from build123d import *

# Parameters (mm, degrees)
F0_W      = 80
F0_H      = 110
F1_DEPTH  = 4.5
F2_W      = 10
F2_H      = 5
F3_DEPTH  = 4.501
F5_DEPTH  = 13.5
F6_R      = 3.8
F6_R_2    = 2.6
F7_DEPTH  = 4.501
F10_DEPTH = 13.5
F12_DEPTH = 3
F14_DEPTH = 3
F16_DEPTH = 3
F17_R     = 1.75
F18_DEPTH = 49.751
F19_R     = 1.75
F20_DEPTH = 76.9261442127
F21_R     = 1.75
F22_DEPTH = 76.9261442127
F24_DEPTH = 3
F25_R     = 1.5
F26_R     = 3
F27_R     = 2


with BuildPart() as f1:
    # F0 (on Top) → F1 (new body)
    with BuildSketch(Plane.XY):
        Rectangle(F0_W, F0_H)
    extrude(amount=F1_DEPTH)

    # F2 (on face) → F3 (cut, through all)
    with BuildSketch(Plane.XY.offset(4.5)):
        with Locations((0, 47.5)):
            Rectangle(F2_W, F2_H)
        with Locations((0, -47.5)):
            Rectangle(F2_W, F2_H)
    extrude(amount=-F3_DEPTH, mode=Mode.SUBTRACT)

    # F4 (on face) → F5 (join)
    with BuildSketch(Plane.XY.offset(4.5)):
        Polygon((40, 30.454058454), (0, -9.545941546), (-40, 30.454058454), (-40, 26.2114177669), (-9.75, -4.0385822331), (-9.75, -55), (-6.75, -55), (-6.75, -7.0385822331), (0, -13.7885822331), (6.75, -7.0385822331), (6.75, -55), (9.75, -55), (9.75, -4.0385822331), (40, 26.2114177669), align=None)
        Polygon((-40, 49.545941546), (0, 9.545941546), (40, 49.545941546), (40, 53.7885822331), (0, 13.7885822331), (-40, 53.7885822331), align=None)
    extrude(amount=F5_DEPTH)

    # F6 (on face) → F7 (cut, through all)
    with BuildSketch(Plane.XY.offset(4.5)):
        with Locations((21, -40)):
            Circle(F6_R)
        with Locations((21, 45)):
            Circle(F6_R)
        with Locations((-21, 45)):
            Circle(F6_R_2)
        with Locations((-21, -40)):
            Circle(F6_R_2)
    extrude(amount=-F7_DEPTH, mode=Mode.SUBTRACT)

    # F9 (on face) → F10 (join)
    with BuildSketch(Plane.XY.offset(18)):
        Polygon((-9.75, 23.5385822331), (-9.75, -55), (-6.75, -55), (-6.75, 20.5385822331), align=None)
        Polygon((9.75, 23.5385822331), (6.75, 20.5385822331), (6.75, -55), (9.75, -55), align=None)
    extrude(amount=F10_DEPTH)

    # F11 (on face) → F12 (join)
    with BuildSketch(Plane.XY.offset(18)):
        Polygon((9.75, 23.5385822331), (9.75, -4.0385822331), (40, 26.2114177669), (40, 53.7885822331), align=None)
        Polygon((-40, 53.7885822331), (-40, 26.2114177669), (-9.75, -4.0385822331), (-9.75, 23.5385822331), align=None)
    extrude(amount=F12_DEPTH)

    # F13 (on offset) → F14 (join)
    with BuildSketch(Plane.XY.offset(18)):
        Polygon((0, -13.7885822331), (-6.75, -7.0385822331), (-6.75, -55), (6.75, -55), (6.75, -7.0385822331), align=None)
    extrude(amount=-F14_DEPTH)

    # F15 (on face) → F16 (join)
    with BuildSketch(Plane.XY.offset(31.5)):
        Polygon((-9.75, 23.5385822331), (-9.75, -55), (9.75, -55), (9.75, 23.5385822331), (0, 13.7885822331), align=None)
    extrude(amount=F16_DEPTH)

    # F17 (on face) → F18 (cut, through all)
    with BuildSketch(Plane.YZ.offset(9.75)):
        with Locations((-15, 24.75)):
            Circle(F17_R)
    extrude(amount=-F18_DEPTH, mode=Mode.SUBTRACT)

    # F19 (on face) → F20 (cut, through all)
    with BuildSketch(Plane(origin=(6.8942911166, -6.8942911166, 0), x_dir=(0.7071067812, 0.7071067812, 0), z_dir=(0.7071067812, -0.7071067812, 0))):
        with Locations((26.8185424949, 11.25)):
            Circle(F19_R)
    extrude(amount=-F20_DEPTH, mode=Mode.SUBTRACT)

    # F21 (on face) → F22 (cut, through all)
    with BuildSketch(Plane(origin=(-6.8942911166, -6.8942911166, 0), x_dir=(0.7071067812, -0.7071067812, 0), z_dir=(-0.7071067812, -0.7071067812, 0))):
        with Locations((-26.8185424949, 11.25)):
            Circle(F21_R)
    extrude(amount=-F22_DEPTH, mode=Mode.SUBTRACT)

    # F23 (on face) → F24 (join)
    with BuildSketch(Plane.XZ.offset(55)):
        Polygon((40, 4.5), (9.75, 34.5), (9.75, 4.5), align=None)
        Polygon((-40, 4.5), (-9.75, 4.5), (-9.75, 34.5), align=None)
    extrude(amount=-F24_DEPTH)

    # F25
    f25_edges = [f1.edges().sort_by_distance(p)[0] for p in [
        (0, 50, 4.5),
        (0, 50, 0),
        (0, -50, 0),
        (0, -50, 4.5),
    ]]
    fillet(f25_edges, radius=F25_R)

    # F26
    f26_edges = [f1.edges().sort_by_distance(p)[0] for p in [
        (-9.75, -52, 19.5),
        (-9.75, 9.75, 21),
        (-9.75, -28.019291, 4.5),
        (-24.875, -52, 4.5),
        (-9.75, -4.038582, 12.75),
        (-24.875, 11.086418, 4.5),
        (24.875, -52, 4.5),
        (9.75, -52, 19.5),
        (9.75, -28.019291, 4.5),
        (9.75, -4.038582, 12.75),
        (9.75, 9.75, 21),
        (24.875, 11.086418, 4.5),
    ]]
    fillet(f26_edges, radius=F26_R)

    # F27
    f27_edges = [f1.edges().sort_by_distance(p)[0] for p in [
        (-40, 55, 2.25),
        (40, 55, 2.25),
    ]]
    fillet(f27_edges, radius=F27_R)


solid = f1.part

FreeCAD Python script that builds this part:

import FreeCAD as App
import Part
import Sketcher

V = App.Vector


def edges_at(feature, points):
    """Names of the edges that pass closest to the given points."""
    edges = feature.Shape.Edges
    near = lambda p: min(range(len(edges)), key=lambda i: edges[i].distToShape(Part.Vertex(*p))[0])
    return sorted({f"Edge{near(p) + 1}" for p in points})


def add_polygon(sketch, points):
    """Adds a closed chain of lines whose ends are joined by coincident constraints."""
    first, n = sketch.GeometryCount, len(points)
    for a, b in zip(points, points[1:] + points[:1]):
        sketch.addGeometry(Part.LineSegment(App.Vector(*a, 0), App.Vector(*b, 0)), False)
    for i in range(n):
        sketch.addConstraint(Sketcher.Constraint("Coincident", first + i, 2, first + (i + 1) % n, 1))

doc = App.newDocument("Part")
body = doc.addObject("PartDesign::Body", "Body")

# Sketch on XY plane
sketch1 = body.newObject("Sketcher::SketchObject", "Sketch")
sketch1.AttachmentSupport = (doc.getObject("XY_Plane"), [""])
sketch1.MapMode = "FlatFace"
add_polygon(sketch1, [(-40, 55), (-40, -55), (40, -55), (40, 55)])  # lines 0-3
sketch1.addConstraint(Sketcher.Constraint("Vertical", 0))
sketch1.addConstraint(Sketcher.Constraint("Horizontal", 1))
sketch1.addConstraint(Sketcher.Constraint("Vertical", 2))
sketch1.addConstraint(Sketcher.Constraint("Horizontal", 3))
sketch1.addConstraint(Sketcher.Constraint("Symmetric", 0, 2, 2, 2, -1, 1))
sketch1.addConstraint(Sketcher.Constraint("DistanceX", 1, 1, 1, 2, 80.0))
sketch1.addConstraint(Sketcher.Constraint("DistanceY", 0, 2, 0, 1, 110.0))
pad1 = body.newObject("PartDesign::Pad", "Pad")
pad1.Profile = sketch1
pad1.Length = 4.5

# Sketch on XY plane
sketch2 = body.newObject("Sketcher::SketchObject", "Sketch001")
sketch2.AttachmentSupport = (doc.getObject("XY_Plane"), [""])
sketch2.MapMode = "FlatFace"
sketch2.AttachmentOffset = App.Placement(V(0, 0, 4.5), App.Rotation())
add_polygon(sketch2, [(-5, 50), (-5, 45), (5, 45), (5, 50)])  # lines 0-3
add_polygon(sketch2, [(-5, -45), (-5, -50), (5, -50), (5, -45)])  # lines 4-7
sketch2.addConstraint(Sketcher.Constraint("Vertical", 0))
sketch2.addConstraint(Sketcher.Constraint("Horizontal", 1))
sketch2.addConstraint(Sketcher.Constraint("Vertical", 2))
sketch2.addConstraint(Sketcher.Constraint("Horizontal", 3))
sketch2.addConstraint(Sketcher.Constraint("Vertical", 4))
sketch2.addConstraint(Sketcher.Constraint("Horizontal", 5))
sketch2.addConstraint(Sketcher.Constraint("Vertical", 6))
sketch2.addConstraint(Sketcher.Constraint("Horizontal", 7))
sketch2.addConstraint(Sketcher.Constraint("Symmetric", 2, 2, 4, 2, -1, 1))
sketch2.addConstraint(Sketcher.Constraint("Symmetric", 0, 2, 6, 2, -1, 1))
sketch2.addConstraint(Sketcher.Constraint("Vertical", 3, 2, 4, 2))
sketch2.addConstraint(Sketcher.Constraint("DistanceX", 1, 1, 1, 2, 10.0))
sketch2.addConstraint(Sketcher.Constraint("DistanceY", 0, 2, 0, 1, 5.0))
sketch2.addConstraint(Sketcher.Constraint("DistanceY", -1, 1, 0, 2, 45.0))
pocket1 = body.newObject("PartDesign::Pocket", "Pocket")
pocket1.Profile = sketch2
pocket1.Type = "ThroughAll"

# Sketch on XY plane
sketch3 = body.newObject("Sketcher::SketchObject", "Sketch002")
sketch3.AttachmentSupport = (doc.getObject("XY_Plane"), [""])
sketch3.MapMode = "FlatFace"
sketch3.AttachmentOffset = App.Placement(V(0, 0, 4.5), App.Rotation())
add_polygon(sketch3, [(40, 30.5), (0, -9.5), (-40, 30.5), (-40, 26.2), (-9.8, -4), (-9.8, -55), (-6.8, -55), (-6.8, -7), (0, -13.8), (6.8, -7), (6.8, -55), (9.8, -55), (9.8, -4), (40, 26.2)])  # lines 0-13
add_polygon(sketch3, [(-40, 49.5), (0, 9.5), (40, 49.5), (40, 53.8), (0, 13.8), (-40, 53.8)])  # lines 14-19
sketch3.addConstraint(Sketcher.Constraint("Vertical", 2))
sketch3.addConstraint(Sketcher.Constraint("Vertical", 4))
sketch3.addConstraint(Sketcher.Constraint("Horizontal", 5))
sketch3.addConstraint(Sketcher.Constraint("Vertical", 6))
sketch3.addConstraint(Sketcher.Constraint("Vertical", 9))
sketch3.addConstraint(Sketcher.Constraint("Horizontal", 10))
sketch3.addConstraint(Sketcher.Constraint("Vertical", 11))
sketch3.addConstraint(Sketcher.Constraint("Vertical", 13))
sketch3.addConstraint(Sketcher.Constraint("Vertical", 16))
sketch3.addConstraint(Sketcher.Constraint("Vertical", 19))
sketch3.addConstraint(Sketcher.Constraint("Symmetric", 0, 2, 14, 2, -1, 1))
sketch3.addConstraint(Sketcher.Constraint("Symmetric", 7, 2, 17, 2, -1, 1))
sketch3.addConstraint(Sketcher.Constraint("Symmetric", 6, 2, 8, 2, -2))
sketch3.addConstraint(Sketcher.Constraint("Symmetric", 4, 2, 10, 2, -2))
sketch3.addConstraint(Sketcher.Constraint("Symmetric", 2, 2, 12, 2, -2))
sketch3.addConstraint(Sketcher.Constraint("Symmetric", 16, 2, 18, 2, -2))
sketch3.addConstraint(Sketcher.Constraint("PointOnObject", 0, 2, -2))
sketch3.addConstraint(Sketcher.Constraint("PointOnObject", 7, 2, -2))
sketch3.addConstraint(Sketcher.Constraint("Perpendicular", 0, 1))
sketch3.addConstraint(Sketcher.Constraint("Parallel", 1, 3))
sketch3.addConstraint(Sketcher.Constraint("Parallel", 3, 7))
sketch3.addConstraint(Sketcher.Constraint("Perpendicular", 7, 8))
sketch3.addConstraint(Sketcher.Constraint("Parallel", 8, 12))
sketch3.addConstraint(Sketcher.Constraint("Perpendicular", 12, 14))
sketch3.addConstraint(Sketcher.Constraint("Perpendicular", 14, 15))
sketch3.addConstraint(Sketcher.Constraint("Parallel", 15, 17))
sketch3.addConstraint(Sketcher.Constraint("Vertical", 13, 2, 15, 2))
sketch3.addConstraint(Sketcher.Constraint("Equal", 13, 16))
sketch3.addConstraint(Sketcher.Constraint("DistanceX", 5, 1, 5, 2, 3.0))
sketch3.addConstraint(Sketcher.Constraint("DistanceX", 1, 2, -1, 1, 40.0))
sketch3.addConstraint(Sketcher.Constraint("DistanceY", 4, 2, -1, 1, 55.0))
sketch3.addConstraint(Sketcher.Constraint("DistanceX", 6, 2, 8, 2, 13.5))
sketch3.addConstraint(Sketcher.Constraint("DistanceY", 2, 2, 2, 1, 4.242641))
sketch3.addConstraint(Sketcher.Constraint("DistanceY", 4, 2, 4, 1, 50.961418))
pad2 = body.newObject("PartDesign::Pad", "Pad001")
pad2.Profile = sketch3
pad2.Length = 13.5

# Sketch on XY plane
sketch4 = body.newObject("Sketcher::SketchObject", "Sketch003")
sketch4.AttachmentSupport = (doc.getObject("XY_Plane"), [""])
sketch4.MapMode = "FlatFace"
sketch4.AttachmentOffset = App.Placement(V(0, 0, 4.5), App.Rotation())
sketch4.addGeometry(Part.Circle(V(21, -40, 0), V(0, 0, 1), 3.8), False)
sketch4.addGeometry(Part.Circle(V(21, 45, 0), V(0, 0, 1), 3.8), False)
sketch4.addGeometry(Part.Circle(V(-21, 45, 0), V(0, 0, 1), 2.6), False)
sketch4.addGeometry(Part.Circle(V(-21, -40, 0), V(0, 0, 1), 2.6), False)
sketch4.addConstraint(Sketcher.Constraint("Equal", 0, 1))
sketch4.addConstraint(Sketcher.Constraint("Equal", 2, 3))
sketch4.addConstraint(Sketcher.Constraint("Symmetric", 1, 3, 2, 3, -2))
sketch4.addConstraint(Sketcher.Constraint("Symmetric", 0, 3, 3, 3, -2))
sketch4.addConstraint(Sketcher.Constraint("Vertical", 0, 3, 1, 3))
sketch4.addConstraint(Sketcher.Constraint("Diameter", 0, 7.6))
sketch4.addConstraint(Sketcher.Constraint("Diameter", 2, 5.2))
sketch4.addConstraint(Sketcher.Constraint("DistanceX", -1, 1, 0, 3, 21.0))
sketch4.addConstraint(Sketcher.Constraint("DistanceY", 0, 3, -1, 1, 40.0))
sketch4.addConstraint(Sketcher.Constraint("DistanceY", -1, 1, 1, 3, 45.0))
pocket2 = body.newObject("PartDesign::Pocket", "Pocket001")
pocket2.Profile = sketch4
pocket2.Type = "ThroughAll"

# Sketch on XY plane
sketch5 = body.newObject("Sketcher::SketchObject", "Sketch004")
sketch5.AttachmentSupport = (doc.getObject("XY_Plane"), [""])
sketch5.MapMode = "FlatFace"
sketch5.AttachmentOffset = App.Placement(V(0, 0, 18), App.Rotation())
add_polygon(sketch5, [(-9.8, 23.5), (-9.8, -55), (-6.8, -55), (-6.8, 20.5)])  # lines 0-3
add_polygon(sketch5, [(9.8, 23.5), (6.8, 20.5), (6.8, -55), (9.8, -55)])  # lines 4-7
sketch5.addConstraint(Sketcher.Constraint("Vertical", 0))
sketch5.addConstraint(Sketcher.Constraint("Horizontal", 1))
sketch5.addConstraint(Sketcher.Constraint("Vertical", 2))
sketch5.addConstraint(Sketcher.Constraint("Vertical", 5))
sketch5.addConstraint(Sketcher.Constraint("Horizontal", 6))
sketch5.addConstraint(Sketcher.Constraint("Vertical", 7))
sketch5.addConstraint(Sketcher.Constraint("Symmetric", 2, 2, 4, 2, -2))
sketch5.addConstraint(Sketcher.Constraint("Symmetric", 0, 2, 6, 2, -2))
sketch5.addConstraint(Sketcher.Constraint("Perpendicular", 3, 4))
sketch5.addConstraint(Sketcher.Constraint("Horizontal", 3, 2, 7, 2))
sketch5.addConstraint(Sketcher.Constraint("DistanceX", 1, 1, 1, 2, 3.0))
sketch5.addConstraint(Sketcher.Constraint("DistanceY", 0, 2, -1, 1, 55.0))
sketch5.addConstraint(Sketcher.Constraint("DistanceX", 2, 2, 4, 2, 13.5))
sketch5.addConstraint(Sketcher.Constraint("DistanceY", 0, 2, 0, 1, 78.538582))
pad3 = body.newObject("PartDesign::Pad", "Pad002")
pad3.Profile = sketch5
pad3.Length = 13.5

# Sketch on XY plane
sketch6 = body.newObject("Sketcher::SketchObject", "Sketch005")
sketch6.AttachmentSupport = (doc.getObject("XY_Plane"), [""])
sketch6.MapMode = "FlatFace"
sketch6.AttachmentOffset = App.Placement(V(0, 0, 18), App.Rotation())
add_polygon(sketch6, [(10, 24), (10, -4), (40, 26), (40, 54)])  # lines 0-3
add_polygon(sketch6, [(-40, 54), (-40, 26), (-10, -4), (-10, 24)])  # lines 4-7
sketch6.addConstraint(Sketcher.Constraint("Vertical", 0))
sketch6.addConstraint(Sketcher.Constraint("Vertical", 2))
sketch6.addConstraint(Sketcher.Constraint("Vertical", 4))
sketch6.addConstraint(Sketcher.Constraint("Vertical", 6))
sketch6.addConstraint(Sketcher.Constraint("Symmetric", 1, 2, 4, 2, -2))
sketch6.addConstraint(Sketcher.Constraint("Symmetric", 0, 2, 5, 2, -2))
sketch6.addConstraint(Sketcher.Constraint("Parallel", 1, 3))
sketch6.addConstraint(Sketcher.Constraint("Perpendicular", 3, 5))
sketch6.addConstraint(Sketcher.Constraint("Parallel", 5, 7))
sketch6.addConstraint(Sketcher.Constraint("Horizontal", 3, 2, 6, 2))
sketch6.addConstraint(Sketcher.Constraint("DistanceX", -1, 1, 1, 2, 40.0))
sketch6.addConstraint(Sketcher.Constraint("DistanceX", 5, 2, 0, 2, 19.5))
sketch6.addConstraint(Sketcher.Constraint("DistanceY", 0, 2, 0, 1, 27.577164))
sketch6.addConstraint(Sketcher.Constraint("DistanceY", 0, 2, -1, 1, 4.038582))
pad4 = body.newObject("PartDesign::Pad", "Pad003")
pad4.Profile = sketch6
pad4.Length = 3

# Sketch on XY plane
sketch7 = body.newObject("Sketcher::SketchObject", "Sketch006")
sketch7.AttachmentSupport = (doc.getObject("XY_Plane"), [""])
sketch7.MapMode = "FlatFace"
sketch7.AttachmentOffset = App.Placement(V(0, 0, 18), App.Rotation())
add_polygon(sketch7, [(0, -14), (-7, -7), (-7, -55), (7, -55), (7, -7)])  # lines 0-4
sketch7.addConstraint(Sketcher.Constraint("Vertical", 1))
sketch7.addConstraint(Sketcher.Constraint("Horizontal", 2))
sketch7.addConstraint(Sketcher.Constraint("Vertical", 3))
sketch7.addConstraint(Sketcher.Constraint("Symmetric", 0, 2, 3, 2, -2))
sketch7.addConstraint(Sketcher.Constraint("PointOnObject", 4, 2, -2))
sketch7.addConstraint(Sketcher.Constraint("Perpendicular", 0, 4))
sketch7.addConstraint(Sketcher.Constraint("DistanceX", 2, 1, 2, 2, 13.5))
sketch7.addConstraint(Sketcher.Constraint("DistanceY", 1, 2, -1, 1, 55.0))
sketch7.addConstraint(Sketcher.Constraint("DistanceY", 1, 2, 1, 1, 47.961418))
pad5 = body.newObject("PartDesign::Pad", "Pad004")
pad5.Profile = sketch7
pad5.Length = 3
pad5.Reversed = True

# Sketch on XY plane
sketch8 = body.newObject("Sketcher::SketchObject", "Sketch007")
sketch8.AttachmentSupport = (doc.getObject("XY_Plane"), [""])
sketch8.MapMode = "FlatFace"
sketch8.AttachmentOffset = App.Placement(V(0, 0, 31.5), App.Rotation())
add_polygon(sketch8, [(-10, 24), (-10, -55), (10, -55), (10, 24), (0, 14)])  # lines 0-4
sketch8.addConstraint(Sketcher.Constraint("Vertical", 0))
sketch8.addConstraint(Sketcher.Constraint("Horizontal", 1))
sketch8.addConstraint(Sketcher.Constraint("Vertical", 2))
sketch8.addConstraint(Sketcher.Constraint("Symmetric", 2, 2, 4, 2, -2))
sketch8.addConstraint(Sketcher.Constraint("PointOnObject", 3, 2, -2))
sketch8.addConstraint(Sketcher.Constraint("Perpendicular", 3, 4))
sketch8.addConstraint(Sketcher.Constraint("DistanceX", 1, 1, 1, 2, 19.5))
sketch8.addConstraint(Sketcher.Constraint("DistanceY", 0, 2, -1, 1, 55.0))
sketch8.addConstraint(Sketcher.Constraint("DistanceY", 0, 2, 0, 1, 78.538582))
pad6 = body.newObject("PartDesign::Pad", "Pad005")
pad6.Profile = sketch8
pad6.Length = 3

# Sketch on YZ plane
sketch9 = body.newObject("Sketcher::SketchObject", "Sketch008")
sketch9.AttachmentSupport = (doc.getObject("YZ_Plane"), [""])
sketch9.MapMode = "FlatFace"
sketch9.AttachmentOffset = App.Placement(V(0, 0, 9.75), App.Rotation())
sketch9.addGeometry(Part.Circle(V(-15, 24.8, 0), V(0, 0, 1), 1.8), False)
sketch9.addConstraint(Sketcher.Constraint("Diameter", 0, 3.5))
sketch9.addConstraint(Sketcher.Constraint("DistanceX", 0, 3, -1, 1, 15.0))
sketch9.addConstraint(Sketcher.Constraint("DistanceY", -1, 1, 0, 3, 24.75))
pocket3 = body.newObject("PartDesign::Pocket", "Pocket002")
pocket3.Profile = sketch9
pocket3.Type = "ThroughAll"

# Sketch on an angled plane
sketch10 = body.newObject("Sketcher::SketchObject", "Sketch009")
sketch10.Placement = App.Placement(V(6.894291, -6.894291, 0), App.Rotation(V(0.707106781, 0.707106781, 0), V(0, 0, 0.999999999), V(0.707106781, -0.707106781, 0), "ZXY"))
sketch10.addGeometry(Part.Circle(V(26.8, 11.2, 0), V(0, 0, 1), 1.8), False)
sketch10.addConstraint(Sketcher.Constraint("Diameter", 0, 3.5))
sketch10.addConstraint(Sketcher.Constraint("DistanceY", -1, 1, 0, 3, 11.25))
sketch10.addConstraint(Sketcher.Constraint("DistanceX", -1, 1, 0, 3, 26.818542))
pocket4 = body.newObject("PartDesign::Pocket", "Pocket003")
pocket4.Profile = sketch10
pocket4.Type = "ThroughAll"

# Sketch on an angled plane
sketch11 = body.newObject("Sketcher::SketchObject", "Sketch010")
sketch11.Placement = App.Placement(V(-6.894291, -6.894291, 0), App.Rotation(V(0.707106781, -0.707106781, 0), V(0, 0, 0.999999999), V(-0.707106781, -0.707106781, 0), "ZXY"))
sketch11.addGeometry(Part.Circle(V(-26.8, 11.2, 0), V(0, 0, 1), 1.8), False)
sketch11.addConstraint(Sketcher.Constraint("Diameter", 0, 3.5))
sketch11.addConstraint(Sketcher.Constraint("DistanceY", -1, 1, 0, 3, 11.25))
sketch11.addConstraint(Sketcher.Constraint("DistanceX", 0, 3, -1, 1, 26.818542))
pocket5 = body.newObject("PartDesign::Pocket", "Pocket004")
pocket5.Profile = sketch11
pocket5.Type = "ThroughAll"

# Sketch on XZ plane
sketch12 = body.newObject("Sketcher::SketchObject", "Sketch011")
sketch12.AttachmentSupport = (doc.getObject("XZ_Plane"), [""])
sketch12.MapMode = "FlatFace"
sketch12.AttachmentOffset = App.Placement(V(0, 0, 55), App.Rotation())
add_polygon(sketch12, [(40, 4), (10, 34), (10, 4)])  # lines 0-2
add_polygon(sketch12, [(-40, 4), (-10, 4), (-10, 34)])  # lines 3-5
sketch12.addConstraint(Sketcher.Constraint("Vertical", 1))
sketch12.addConstraint(Sketcher.Constraint("Horizontal", 2))
sketch12.addConstraint(Sketcher.Constraint("Horizontal", 3))
sketch12.addConstraint(Sketcher.Constraint("Vertical", 4))
sketch12.addConstraint(Sketcher.Constraint("Symmetric", 1, 2, 3, 2, -2))
sketch12.addConstraint(Sketcher.Constraint("Horizontal", 0, 2, 4, 2))
sketch12.addConstraint(Sketcher.Constraint("Equal", 2, 3))
sketch12.addConstraint(Sketcher.Constraint("DistanceY", 1, 2, 1, 1, 30.0))
sketch12.addConstraint(Sketcher.Constraint("DistanceX", -1, 1, 2, 2, 40.0))
sketch12.addConstraint(Sketcher.Constraint("DistanceX", 2, 1, 2, 2, 30.25))
sketch12.addConstraint(Sketcher.Constraint("DistanceY", -1, 1, 0, 2, 34.5))
pad7 = body.newObject("PartDesign::Pad", "Pad006")
pad7.Profile = sketch12
pad7.Length = 3
pad7.Reversed = True
doc.recompute()

fillet = body.newObject("PartDesign::Fillet", "Fillet")
fillet.Base = (pad7, edges_at(pad7, [
    (0, 50, 4.5),
    (0, 50, 0),
    (0, -50, 0),
    (0, -50, 4.5),
]))
fillet.Radius = 1.5
doc.recompute()

fillet2 = body.newObject("PartDesign::Fillet", "Fillet001")
fillet2.Base = (fillet, edges_at(fillet, [
    (-9.75, -52, 19.5),
    (-9.75, 9.75, 21),
    (-9.75, -28.019, 4.5),
    (-24.875, -52, 4.5),
    (-9.75, -4.039, 12.75),
    (-24.875, 11.086, 4.5),
    (24.875, -52, 4.5),
    (9.75, -52, 19.5),
    (9.75, -28.019, 4.5),
    (9.75, -4.039, 12.75),
    (9.75, 9.75, 21),
    (24.875, 11.086, 4.5),
]))
fillet2.Radius = 3
doc.recompute()

fillet3 = body.newObject("PartDesign::Fillet", "Fillet002")
fillet3.Base = (fillet2, edges_at(fillet2, [(-40, 55, 2.25), (40, 55, 2.25)]))
fillet3.Radius = 2

doc.recompute()
